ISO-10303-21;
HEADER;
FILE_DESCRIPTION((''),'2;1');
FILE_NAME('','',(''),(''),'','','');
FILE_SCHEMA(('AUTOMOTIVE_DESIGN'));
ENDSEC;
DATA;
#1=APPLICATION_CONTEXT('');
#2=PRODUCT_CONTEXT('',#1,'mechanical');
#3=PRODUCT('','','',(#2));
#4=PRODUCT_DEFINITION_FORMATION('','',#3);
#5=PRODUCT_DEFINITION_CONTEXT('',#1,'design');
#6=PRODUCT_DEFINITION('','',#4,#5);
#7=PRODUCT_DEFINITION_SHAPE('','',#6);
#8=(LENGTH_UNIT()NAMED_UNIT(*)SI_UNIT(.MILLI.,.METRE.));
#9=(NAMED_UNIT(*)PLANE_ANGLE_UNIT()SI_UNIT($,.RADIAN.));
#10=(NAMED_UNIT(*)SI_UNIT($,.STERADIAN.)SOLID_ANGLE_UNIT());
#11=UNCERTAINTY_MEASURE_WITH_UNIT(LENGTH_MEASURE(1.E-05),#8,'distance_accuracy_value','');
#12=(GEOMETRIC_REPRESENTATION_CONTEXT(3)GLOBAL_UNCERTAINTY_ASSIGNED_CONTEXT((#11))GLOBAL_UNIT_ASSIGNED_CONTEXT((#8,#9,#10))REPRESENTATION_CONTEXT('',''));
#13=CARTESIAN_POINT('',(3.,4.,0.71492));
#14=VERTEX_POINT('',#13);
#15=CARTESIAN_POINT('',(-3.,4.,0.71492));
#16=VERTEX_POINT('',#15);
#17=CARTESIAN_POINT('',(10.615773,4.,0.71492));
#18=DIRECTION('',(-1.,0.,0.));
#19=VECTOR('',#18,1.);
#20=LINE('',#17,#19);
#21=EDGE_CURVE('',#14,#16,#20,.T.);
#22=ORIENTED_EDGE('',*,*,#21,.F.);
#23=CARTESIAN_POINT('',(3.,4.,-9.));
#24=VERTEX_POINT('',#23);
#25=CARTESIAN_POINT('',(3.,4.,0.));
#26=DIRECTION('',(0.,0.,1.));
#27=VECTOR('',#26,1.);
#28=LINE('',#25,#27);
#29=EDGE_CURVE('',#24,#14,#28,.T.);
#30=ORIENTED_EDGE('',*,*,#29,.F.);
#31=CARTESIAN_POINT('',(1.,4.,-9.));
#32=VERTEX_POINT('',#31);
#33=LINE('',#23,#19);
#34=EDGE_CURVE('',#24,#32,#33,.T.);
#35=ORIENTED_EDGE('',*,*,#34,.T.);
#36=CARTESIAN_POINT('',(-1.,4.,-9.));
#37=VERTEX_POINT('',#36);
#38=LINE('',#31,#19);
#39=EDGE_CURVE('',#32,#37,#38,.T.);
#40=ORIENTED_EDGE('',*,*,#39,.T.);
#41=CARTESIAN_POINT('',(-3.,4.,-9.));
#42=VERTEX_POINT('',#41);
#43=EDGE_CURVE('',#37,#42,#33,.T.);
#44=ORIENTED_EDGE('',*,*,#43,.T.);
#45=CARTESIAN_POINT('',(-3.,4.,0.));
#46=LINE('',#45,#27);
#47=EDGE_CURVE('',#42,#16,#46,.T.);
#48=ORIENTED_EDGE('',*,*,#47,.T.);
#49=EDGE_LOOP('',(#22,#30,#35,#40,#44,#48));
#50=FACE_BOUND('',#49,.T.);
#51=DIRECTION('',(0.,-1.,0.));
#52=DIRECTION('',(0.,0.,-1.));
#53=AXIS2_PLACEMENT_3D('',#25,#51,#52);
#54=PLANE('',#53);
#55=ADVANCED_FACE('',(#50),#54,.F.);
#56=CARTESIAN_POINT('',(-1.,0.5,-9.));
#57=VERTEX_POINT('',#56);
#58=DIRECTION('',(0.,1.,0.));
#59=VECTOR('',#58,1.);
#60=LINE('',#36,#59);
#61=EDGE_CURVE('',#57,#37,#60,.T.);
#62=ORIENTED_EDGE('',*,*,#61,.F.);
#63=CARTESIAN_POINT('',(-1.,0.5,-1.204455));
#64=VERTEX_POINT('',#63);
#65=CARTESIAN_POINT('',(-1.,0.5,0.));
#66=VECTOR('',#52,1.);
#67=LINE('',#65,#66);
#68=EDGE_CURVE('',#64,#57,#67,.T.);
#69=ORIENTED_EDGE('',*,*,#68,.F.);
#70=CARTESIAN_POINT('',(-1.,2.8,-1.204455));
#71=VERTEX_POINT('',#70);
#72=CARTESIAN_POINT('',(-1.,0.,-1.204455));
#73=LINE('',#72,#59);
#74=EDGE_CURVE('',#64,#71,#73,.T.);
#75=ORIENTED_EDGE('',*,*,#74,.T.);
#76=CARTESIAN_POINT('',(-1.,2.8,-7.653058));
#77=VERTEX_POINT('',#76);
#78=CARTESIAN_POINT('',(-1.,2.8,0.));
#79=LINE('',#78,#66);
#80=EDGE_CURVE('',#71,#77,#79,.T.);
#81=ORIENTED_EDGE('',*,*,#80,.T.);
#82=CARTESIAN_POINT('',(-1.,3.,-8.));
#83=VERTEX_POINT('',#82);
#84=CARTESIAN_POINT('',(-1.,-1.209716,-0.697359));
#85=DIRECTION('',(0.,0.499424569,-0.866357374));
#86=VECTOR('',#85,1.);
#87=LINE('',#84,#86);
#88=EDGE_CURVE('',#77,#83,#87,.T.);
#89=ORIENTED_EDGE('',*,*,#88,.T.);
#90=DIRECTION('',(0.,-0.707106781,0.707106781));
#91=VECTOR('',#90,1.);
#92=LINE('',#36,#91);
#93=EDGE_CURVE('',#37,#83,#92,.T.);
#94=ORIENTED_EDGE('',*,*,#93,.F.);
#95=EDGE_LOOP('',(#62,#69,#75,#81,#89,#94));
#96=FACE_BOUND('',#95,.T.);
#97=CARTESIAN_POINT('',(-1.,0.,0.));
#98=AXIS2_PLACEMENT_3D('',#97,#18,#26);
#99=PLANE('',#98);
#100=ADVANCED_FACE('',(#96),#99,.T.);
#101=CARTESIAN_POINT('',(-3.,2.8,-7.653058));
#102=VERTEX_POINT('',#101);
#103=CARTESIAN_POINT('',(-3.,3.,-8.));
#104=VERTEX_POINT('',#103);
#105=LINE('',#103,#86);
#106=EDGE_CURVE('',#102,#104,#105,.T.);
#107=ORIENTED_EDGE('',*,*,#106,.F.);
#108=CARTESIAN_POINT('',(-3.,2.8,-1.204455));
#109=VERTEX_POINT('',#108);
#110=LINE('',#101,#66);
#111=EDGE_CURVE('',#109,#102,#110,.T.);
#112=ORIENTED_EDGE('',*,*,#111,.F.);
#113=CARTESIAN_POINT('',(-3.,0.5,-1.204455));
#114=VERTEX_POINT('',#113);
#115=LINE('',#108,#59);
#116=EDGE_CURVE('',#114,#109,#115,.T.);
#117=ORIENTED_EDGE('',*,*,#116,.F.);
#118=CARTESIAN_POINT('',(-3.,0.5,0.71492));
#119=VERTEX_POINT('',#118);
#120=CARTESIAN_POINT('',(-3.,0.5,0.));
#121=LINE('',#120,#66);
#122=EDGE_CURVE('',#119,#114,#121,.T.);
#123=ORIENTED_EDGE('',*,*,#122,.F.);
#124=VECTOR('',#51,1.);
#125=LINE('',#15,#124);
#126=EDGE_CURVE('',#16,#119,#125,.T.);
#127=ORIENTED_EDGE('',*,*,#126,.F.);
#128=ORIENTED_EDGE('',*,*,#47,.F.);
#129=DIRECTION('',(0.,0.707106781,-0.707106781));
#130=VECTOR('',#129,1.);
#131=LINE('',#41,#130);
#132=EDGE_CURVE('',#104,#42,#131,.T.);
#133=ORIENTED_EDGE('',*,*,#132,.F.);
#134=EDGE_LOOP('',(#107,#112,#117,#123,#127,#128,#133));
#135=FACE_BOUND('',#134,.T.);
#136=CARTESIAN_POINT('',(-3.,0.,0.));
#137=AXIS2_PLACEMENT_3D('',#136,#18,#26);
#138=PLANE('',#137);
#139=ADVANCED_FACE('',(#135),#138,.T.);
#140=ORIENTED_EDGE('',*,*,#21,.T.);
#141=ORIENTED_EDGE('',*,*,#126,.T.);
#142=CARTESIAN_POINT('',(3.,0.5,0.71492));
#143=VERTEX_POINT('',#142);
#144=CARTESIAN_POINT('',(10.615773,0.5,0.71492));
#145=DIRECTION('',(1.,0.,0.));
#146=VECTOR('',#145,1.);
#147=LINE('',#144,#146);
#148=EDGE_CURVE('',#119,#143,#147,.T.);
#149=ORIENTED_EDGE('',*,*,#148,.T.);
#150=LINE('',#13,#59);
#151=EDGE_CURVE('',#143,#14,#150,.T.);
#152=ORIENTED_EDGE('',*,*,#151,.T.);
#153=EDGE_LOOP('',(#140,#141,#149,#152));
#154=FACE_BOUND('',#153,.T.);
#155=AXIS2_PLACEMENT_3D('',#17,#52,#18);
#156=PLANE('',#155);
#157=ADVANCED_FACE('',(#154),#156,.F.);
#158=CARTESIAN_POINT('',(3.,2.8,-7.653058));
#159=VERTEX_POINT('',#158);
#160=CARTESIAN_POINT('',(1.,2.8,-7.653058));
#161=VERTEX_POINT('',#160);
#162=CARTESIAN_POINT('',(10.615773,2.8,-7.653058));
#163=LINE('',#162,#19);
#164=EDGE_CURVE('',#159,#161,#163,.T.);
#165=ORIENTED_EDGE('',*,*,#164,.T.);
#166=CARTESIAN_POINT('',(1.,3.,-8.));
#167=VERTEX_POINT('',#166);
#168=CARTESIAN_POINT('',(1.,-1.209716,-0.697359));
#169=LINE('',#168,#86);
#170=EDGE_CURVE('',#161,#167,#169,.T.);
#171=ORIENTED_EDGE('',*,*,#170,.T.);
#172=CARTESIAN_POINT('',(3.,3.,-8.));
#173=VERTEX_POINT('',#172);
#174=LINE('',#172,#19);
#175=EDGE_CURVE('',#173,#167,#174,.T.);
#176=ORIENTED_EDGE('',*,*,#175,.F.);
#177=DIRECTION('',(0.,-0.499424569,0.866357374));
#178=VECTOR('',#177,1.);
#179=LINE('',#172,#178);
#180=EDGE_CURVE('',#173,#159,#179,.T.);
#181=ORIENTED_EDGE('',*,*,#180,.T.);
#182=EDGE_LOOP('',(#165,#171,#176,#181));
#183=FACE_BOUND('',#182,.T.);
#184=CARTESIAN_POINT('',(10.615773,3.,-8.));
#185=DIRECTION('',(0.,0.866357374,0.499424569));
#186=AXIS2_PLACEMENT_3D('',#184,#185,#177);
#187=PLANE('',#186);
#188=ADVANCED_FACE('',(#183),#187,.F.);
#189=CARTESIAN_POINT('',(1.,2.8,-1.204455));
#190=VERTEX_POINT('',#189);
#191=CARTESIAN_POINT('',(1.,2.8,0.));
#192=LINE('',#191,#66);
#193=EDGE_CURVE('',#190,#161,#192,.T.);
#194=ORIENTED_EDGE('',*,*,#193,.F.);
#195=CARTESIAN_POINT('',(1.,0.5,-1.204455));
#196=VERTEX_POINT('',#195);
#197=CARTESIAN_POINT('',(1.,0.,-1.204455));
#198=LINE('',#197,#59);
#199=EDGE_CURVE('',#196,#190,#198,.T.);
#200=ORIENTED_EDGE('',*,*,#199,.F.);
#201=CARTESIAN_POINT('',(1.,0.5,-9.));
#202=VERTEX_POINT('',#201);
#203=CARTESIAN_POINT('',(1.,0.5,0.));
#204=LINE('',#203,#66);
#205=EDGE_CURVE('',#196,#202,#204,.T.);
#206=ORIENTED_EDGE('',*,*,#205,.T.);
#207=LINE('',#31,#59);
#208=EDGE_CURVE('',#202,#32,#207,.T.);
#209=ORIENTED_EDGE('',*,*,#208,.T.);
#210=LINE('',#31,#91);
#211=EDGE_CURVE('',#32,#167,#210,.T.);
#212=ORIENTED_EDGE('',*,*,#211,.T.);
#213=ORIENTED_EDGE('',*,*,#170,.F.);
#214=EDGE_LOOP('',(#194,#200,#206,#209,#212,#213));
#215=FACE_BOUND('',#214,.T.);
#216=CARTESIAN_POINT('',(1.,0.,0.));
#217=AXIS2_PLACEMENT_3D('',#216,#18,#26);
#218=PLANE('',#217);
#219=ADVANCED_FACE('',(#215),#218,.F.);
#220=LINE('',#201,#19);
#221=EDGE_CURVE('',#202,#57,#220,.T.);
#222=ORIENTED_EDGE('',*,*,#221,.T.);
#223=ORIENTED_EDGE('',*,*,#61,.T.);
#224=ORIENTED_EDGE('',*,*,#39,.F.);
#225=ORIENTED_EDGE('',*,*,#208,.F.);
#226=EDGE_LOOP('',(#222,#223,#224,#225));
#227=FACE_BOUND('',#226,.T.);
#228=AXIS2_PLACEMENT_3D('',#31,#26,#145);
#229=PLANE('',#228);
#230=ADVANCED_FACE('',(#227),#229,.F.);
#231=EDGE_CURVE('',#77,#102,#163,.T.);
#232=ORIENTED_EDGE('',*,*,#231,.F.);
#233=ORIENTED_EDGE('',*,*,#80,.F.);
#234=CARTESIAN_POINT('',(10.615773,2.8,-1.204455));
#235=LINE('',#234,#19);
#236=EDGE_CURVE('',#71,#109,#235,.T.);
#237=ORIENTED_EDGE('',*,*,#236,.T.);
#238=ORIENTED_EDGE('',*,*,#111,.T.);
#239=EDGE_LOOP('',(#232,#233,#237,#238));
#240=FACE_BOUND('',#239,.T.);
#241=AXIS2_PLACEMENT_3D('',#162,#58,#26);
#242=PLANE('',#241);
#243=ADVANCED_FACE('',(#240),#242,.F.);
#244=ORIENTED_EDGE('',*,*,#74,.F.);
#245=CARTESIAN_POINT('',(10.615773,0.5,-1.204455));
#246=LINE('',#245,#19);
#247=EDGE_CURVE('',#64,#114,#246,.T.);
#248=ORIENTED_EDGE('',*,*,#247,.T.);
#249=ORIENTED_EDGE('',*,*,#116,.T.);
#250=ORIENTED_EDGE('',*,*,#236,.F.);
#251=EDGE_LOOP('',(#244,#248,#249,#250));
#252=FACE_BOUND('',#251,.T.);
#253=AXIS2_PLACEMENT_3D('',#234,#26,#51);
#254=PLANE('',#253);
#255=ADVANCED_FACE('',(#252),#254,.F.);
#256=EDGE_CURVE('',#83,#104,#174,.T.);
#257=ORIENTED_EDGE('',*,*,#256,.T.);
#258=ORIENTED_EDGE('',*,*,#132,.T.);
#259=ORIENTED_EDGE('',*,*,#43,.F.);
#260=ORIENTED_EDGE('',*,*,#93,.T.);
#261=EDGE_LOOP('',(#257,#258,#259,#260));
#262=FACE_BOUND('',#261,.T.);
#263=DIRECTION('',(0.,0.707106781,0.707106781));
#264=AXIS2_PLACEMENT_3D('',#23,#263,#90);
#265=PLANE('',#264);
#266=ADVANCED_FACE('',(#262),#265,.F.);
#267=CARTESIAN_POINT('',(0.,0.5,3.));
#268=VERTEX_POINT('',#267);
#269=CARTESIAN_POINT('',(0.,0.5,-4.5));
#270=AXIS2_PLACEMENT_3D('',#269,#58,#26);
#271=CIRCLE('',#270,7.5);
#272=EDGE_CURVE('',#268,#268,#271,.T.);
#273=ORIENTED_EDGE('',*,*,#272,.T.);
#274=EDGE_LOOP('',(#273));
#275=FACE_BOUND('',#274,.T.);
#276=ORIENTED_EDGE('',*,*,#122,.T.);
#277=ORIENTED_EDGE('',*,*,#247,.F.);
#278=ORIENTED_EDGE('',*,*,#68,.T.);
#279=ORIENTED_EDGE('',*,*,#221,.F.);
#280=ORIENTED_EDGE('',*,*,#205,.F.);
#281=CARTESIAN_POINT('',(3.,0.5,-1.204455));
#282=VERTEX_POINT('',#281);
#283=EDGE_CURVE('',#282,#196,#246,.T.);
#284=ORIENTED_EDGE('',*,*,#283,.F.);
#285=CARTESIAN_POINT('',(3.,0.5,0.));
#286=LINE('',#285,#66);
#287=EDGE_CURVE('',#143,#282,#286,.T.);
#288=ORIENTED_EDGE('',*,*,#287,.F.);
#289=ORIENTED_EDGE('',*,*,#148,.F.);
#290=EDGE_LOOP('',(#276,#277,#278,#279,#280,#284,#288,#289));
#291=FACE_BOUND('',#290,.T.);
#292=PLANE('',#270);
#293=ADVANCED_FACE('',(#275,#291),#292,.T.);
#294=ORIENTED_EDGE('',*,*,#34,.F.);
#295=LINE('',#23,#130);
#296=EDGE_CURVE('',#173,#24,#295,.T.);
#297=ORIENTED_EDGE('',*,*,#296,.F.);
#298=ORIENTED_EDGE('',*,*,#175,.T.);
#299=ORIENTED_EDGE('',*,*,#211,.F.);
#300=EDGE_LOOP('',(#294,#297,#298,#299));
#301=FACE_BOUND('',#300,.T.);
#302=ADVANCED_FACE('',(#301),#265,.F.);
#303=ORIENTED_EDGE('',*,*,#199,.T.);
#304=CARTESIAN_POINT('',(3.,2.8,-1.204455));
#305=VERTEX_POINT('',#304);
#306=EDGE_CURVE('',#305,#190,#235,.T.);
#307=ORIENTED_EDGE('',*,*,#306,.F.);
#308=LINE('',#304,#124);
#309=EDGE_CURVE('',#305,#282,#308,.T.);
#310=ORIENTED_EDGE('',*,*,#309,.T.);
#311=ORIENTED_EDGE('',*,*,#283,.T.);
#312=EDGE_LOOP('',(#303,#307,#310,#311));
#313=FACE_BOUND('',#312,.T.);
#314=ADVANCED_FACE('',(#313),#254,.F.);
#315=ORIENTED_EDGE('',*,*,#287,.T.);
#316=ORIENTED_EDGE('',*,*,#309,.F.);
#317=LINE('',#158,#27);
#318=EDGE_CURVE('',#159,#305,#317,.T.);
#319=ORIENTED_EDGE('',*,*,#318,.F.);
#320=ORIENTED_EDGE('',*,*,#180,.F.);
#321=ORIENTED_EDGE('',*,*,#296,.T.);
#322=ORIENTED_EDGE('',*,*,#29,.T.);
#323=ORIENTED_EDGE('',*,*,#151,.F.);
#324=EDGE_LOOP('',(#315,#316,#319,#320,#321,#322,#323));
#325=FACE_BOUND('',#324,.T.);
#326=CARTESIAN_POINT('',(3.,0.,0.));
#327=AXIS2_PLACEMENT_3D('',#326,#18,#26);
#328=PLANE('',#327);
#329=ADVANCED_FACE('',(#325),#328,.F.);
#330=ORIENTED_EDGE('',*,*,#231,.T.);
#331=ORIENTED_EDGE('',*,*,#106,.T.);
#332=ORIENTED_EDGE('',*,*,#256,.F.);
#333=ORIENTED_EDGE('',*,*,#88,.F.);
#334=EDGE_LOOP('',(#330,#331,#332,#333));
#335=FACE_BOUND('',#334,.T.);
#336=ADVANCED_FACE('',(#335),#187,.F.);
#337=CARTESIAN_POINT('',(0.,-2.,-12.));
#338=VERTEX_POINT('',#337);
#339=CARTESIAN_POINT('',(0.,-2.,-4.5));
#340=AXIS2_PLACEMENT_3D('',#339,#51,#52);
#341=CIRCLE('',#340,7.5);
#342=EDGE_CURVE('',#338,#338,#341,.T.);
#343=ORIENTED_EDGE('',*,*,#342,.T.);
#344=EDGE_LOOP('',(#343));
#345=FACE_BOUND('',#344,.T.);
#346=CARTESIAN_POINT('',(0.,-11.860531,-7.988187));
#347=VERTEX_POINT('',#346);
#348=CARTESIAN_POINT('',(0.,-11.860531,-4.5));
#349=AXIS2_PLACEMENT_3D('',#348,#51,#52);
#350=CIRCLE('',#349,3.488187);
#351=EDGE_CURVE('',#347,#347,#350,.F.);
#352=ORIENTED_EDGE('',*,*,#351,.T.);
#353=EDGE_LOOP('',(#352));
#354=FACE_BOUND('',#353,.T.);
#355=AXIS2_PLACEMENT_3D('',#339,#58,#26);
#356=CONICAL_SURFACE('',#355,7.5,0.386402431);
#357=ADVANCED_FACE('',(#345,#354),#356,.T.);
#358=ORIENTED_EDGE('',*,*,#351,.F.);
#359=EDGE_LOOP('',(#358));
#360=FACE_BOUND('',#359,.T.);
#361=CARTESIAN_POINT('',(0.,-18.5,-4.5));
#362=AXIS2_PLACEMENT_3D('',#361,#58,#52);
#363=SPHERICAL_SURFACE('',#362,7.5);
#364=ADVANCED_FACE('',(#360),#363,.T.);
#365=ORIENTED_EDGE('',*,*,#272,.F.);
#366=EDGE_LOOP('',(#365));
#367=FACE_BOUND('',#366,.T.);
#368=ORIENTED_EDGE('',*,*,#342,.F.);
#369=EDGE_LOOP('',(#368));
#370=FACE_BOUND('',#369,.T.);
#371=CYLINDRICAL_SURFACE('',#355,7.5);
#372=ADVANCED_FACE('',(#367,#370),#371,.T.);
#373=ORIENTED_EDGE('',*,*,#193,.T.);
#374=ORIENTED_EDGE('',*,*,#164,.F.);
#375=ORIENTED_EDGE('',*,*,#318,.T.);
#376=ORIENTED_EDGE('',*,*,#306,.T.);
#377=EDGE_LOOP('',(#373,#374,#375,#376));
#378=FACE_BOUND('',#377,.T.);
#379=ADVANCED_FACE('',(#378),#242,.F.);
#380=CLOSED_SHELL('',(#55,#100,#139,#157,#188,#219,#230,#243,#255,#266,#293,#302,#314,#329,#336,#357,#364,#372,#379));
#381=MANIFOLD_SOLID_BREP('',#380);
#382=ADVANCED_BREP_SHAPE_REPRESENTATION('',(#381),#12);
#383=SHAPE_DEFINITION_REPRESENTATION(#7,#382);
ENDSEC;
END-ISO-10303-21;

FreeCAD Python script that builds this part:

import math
import FreeCAD as App
import Part
import Sketcher
from FreeCAD import Vector
Q = App.Units.Quantity


def add_polygon(sketch, points):
    """Adds a closed chain of lines whose ends are joined by coincident constraints."""
    first, n = sketch.GeometryCount, len(points)
    for a, b in zip(points, points[1:] + points[:1]):
        sketch.addGeometry(Part.LineSegment(App.Vector(*a, 0), App.Vector(*b, 0)), False)
    for i in range(n):
        sketch.addConstraint(Sketcher.Constraint("Coincident", first + i, 2, first + (i + 1) % n, 1))

doc = App.newDocument("Part")
body = doc.addObject("PartDesign::Body", "Body")

sketch1 = body.newObject("Sketcher::SketchObject", "Sketch")
sketch1.AttachmentSupport = (doc.getObject("YZ_Plane"), [""])
sketch1.MapMode = "FlatFace"
add_polygon(sketch1, [(4, 0), (0, 0), (0, -1), (3, -1), (3, -8), (4, -9)])
sketch1.addConstraint([
    Sketcher.Constraint("Horizontal", 0),
    Sketcher.Constraint("Vertical", 1),
    Sketcher.Constraint("Horizontal", 2),
    Sketcher.Constraint("Vertical", 3),
    Sketcher.Constraint("Vertical", 5),
    Sketcher.Constraint("Coincident", 0, 2, -1, 1),
    Sketcher.Constraint("DistanceX", 0, 2, 0, 1, Q("4 mm")),
    Sketcher.Constraint("DistanceX", 2, 1, 2, 2, Q("3 mm")),
    Sketcher.Constraint("DistanceY", 1, 2, 1, 1, Q("1 mm")),
    Sketcher.Constraint("DistanceY", 3, 2, 3, 1, Q("7 mm")),
    Sketcher.Constraint("DistanceY", 5, 1, 5, 2, Q("9 mm")),
])
pad1 = body.newObject("PartDesign::Pad", "Pad")
pad1.Profile = sketch1
pad1.Length = 6
pad1.Midplane = True

sketch2 = body.newObject("Sketcher::SketchObject", "Sketch001")
sketch2.AttachmentSupport = (doc.getObject("YZ_Plane"), [""])
sketch2.MapMode = "FlatFace"
add_polygon(sketch2, [(4, 0), (0, 0), (0, -9), (4, -9)])
sketch2.addConstraint([
    Sketcher.Constraint("Horizontal", 0),
    Sketcher.Constraint("Vertical", 1),
    Sketcher.Constraint("Horizontal", 2),
    Sketcher.Constraint("Vertical", 3),
    Sketcher.Constraint("Coincident", 0, 2, -1, 1),
    Sketcher.Constraint("DistanceX", 0, 2, 0, 1, Q("4 mm")),
    Sketcher.Constraint("DistanceY", 1, 2, 1, 1, Q("9 mm")),
])
pad2 = body.newObject("PartDesign::Pad", "Pad001")
pad2.Profile = sketch2
pad2.Length = 2
pad2.Midplane = True

sketch3 = body.newObject("Sketcher::SketchObject", "Sketch002")
sketch3.AttachmentSupport = (doc.getObject("XZ_Plane"), [""])
sketch3.MapMode = "FlatFace"
sketch3.addGeometry(Part.Circle(Vector(0, -4.5, 0), Vector(0, 0, 1), 7.5), False)
sketch3.addConstraint([
    Sketcher.Constraint("PointOnObject", 0, 3, -2),
    Sketcher.Constraint("Diameter", 0, Q("15 mm")),
    Sketcher.Constraint("DistanceY", 0, 3, -1, 1, Q("4.5 mm")),
])
pad3 = body.newObject("PartDesign::Pad", "Pad002")
pad3.Profile = sketch3
pad3.Length = 2

sketch4 = body.newObject("Sketcher::SketchObject", "Sketch003")
sketch4.AttachmentSupport = (doc.getObject("YZ_Plane"), [""])
sketch4.MapMode = "FlatFace"
add_polygon(sketch4, [(-2, 3), (-13, -1.475412), (-13, -4.5), (-2, -4.5)])
sketch4.addGeometry(Part.LineSegment(Vector(-13, -4.5, 0), Vector(-2, -4.5, 0)), True)
sketch4.addConstraint([
    Sketcher.Constraint("Vertical", 1),
    Sketcher.Constraint("Horizontal", 2),
    Sketcher.Constraint("Vertical", 3),
    Sketcher.Constraint("Horizontal", 4),
    Sketcher.Constraint("Coincident", 4, 1, 1, 2),
    Sketcher.Constraint("Vertical", 3, 2, 4, 2),
    Sketcher.Constraint("DistanceX", 2, 1, 2, 2, Q("11 mm")),
    Sketcher.Constraint("DistanceY", 3, 1, 3, 2, Q("7.5 mm")),
    Sketcher.Constraint("DistanceX", 0, 2, -1, 1, Q("13 mm")),
    Sketcher.Constraint("DistanceY", -1, 1, 3, 2, Q("3 mm")),
    Sketcher.Constraint("DistanceY", 1, 2, 1, 1, Q("3.024588 mm")),
])
revolution = body.newObject("PartDesign::Revolution", "Revolution")
revolution.Profile = sketch4
revolution.ReferenceAxis = (sketch4, ["Axis0"])
revolution.Angle = 360

sketch5 = body.newObject("Sketcher::SketchObject", "Sketch004")
sketch5.AttachmentSupport = (doc.getObject("YZ_Plane"), [""])
sketch5.MapMode = "FlatFace"
sketch5.addGeometry([
    Part.LineSegment(Vector(-26, -4.5, 0), Vector(-11, -4.5, 0)),
    Part.ArcOfCircle(Part.Circle(Vector(-18.5, -4.5, 0), Vector(0, 0, 1), 7.5), math.radians(0), math.radians(180)),
], False)
sketch5.addGeometry(Part.LineSegment(Vector(-11, -4.5, 0), Vector(-26, -4.5, 0)), True)
sketch5.addConstraint([
    Sketcher.Constraint("Coincident", 0, 1, 1, 2),
    Sketcher.Constraint("Coincident", 1, 1, 0, 2),
    Sketcher.Constraint("Horizontal", 0),
    Sketcher.Constraint("Horizontal", 2),
    Sketcher.Constraint("Coincident", 2, 1, 1, 1),
    Sketcher.Constraint("Horizontal", 1, 3, 0, 1),
    Sketcher.Constraint("Equal", 0, 2),
    Sketcher.Constraint("Radius", 1, Q("7.5 mm")),
    Sketcher.Constraint("DistanceX", 0, 1, -1, 1, Q("26 mm")),
    Sketcher.Constraint("DistanceY", 1, 3, -1, 1, Q("4.5 mm")),
])
revolution2 = body.newObject("PartDesign::Revolution", "Revolution001")
revolution2.Profile = sketch5
revolution2.ReferenceAxis = (sketch5, ["Axis0"])
revolution2.Angle = 360

sketch6 = body.newObject("Sketcher::SketchObject", "Sketch005")
sketch6.AttachmentSupport = (doc.getObject("YZ_Plane"), [""])
sketch6.MapMode = "FlatFace"
sketch6.AttachmentOffset = App.Placement(Vector(0, 0, -3), App.Rotation())
add_polygon(sketch6, [(3, -1), (0, -1), (0, -1.204455), (2.8, -1.204455), (2.8, -7.653058), (3, -8)])
add_polygon(sketch6, [(4, 0.71492), (0, 0.71492), (0, 0), (4, 0)])
sketch6.addConstraint([
    Sketcher.Constraint("Horizontal", 0),
    Sketcher.Constraint("Vertical", 1),
    Sketcher.Constraint("Horizontal", 2),
    Sketcher.Constraint("Vertical", 3),
    Sketcher.Constraint("Vertical", 5),
    Sketcher.Constraint("Horizontal", 6),
    Sketcher.Constraint("Vertical", 7),
    Sketcher.Constraint("Horizontal", 8),
    Sketcher.Constraint("Vertical", 9),
    Sketcher.Constraint("Coincident", 7, 2, -1, 1),
    Sketcher.Constraint("PointOnObject", 0, 2, -2),
    Sketcher.Constraint("DistanceX", 0, 2, 0, 1, Q("3 mm")),
    Sketcher.Constraint("DistanceX", 6, 2, 6, 1, Q("4 mm")),
    Sketcher.Constraint("DistanceY", 5, 1, 5, 2, Q("7 mm")),
    Sketcher.Constraint("DistanceX", 2, 1, 2, 2, Q("2.8 mm")),
    Sketcher.Constraint("DistanceY", 0, 2, -1, 1, Q("1 mm")),
    Sketcher.Constraint("DistanceY", 7, 2, 7, 1, Q("0.71492 mm")),
    Sketcher.Constraint("Distance", 4, Q("0.400461 mm")),
    Sketcher.Constraint("DistanceY", 1, 2, 1, 1, Q("0.204455 mm")),
])
pad4 = body.newObject("PartDesign::Pad", "Pad003")
pad4.Profile = sketch6
pad4.Length = 6

sketch7 = body.newObject("Sketcher::SketchObject", "Sketch006")
sketch7.AttachmentSupport = (doc.getObject("XZ_Plane"), [""])
sketch7.MapMode = "FlatFace"
sketch7.addGeometry(Part.Circle(Vector(0, -4.5, 0), Vector(0, 0, 1), 7.5), False)
sketch7.addConstraint([
    Sketcher.Constraint("PointOnObject", 0, 3, -2),
    Sketcher.Constraint("Diameter", 0, Q("15 mm")),
    Sketcher.Constraint("DistanceY", 0, 3, -1, 1, Q("4.5 mm")),
])
pad5 = body.newObject("PartDesign::Pad", "Pad004")
pad5.Profile = sketch7
pad5.Length = 0.5
pad5.Reversed = True

doc.recompute()
